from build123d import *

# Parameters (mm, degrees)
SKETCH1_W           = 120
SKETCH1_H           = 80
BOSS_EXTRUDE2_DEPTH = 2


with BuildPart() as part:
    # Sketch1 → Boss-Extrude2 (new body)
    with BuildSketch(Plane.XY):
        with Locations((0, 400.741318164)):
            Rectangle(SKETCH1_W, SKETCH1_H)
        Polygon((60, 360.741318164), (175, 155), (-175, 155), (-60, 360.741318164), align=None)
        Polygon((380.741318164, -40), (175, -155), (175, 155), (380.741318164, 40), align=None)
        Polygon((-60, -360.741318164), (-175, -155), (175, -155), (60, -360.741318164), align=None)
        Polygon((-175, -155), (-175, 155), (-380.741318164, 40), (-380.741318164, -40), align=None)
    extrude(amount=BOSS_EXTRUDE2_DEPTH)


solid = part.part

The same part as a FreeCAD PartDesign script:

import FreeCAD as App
import Part
import Sketcher
from FreeCAD import Vector
Q = App.Units.Quantity

doc = App.newDocument("Part")
body = doc.addObject("PartDesign::Body", "Body")
body.AllowCompound = True

# Sketch on XY plane
sketch1 = body.newObject("Sketcher::SketchObject", "Sketch")
sketch1.AttachmentSupport = (doc.getObject("XY_Plane"), [""])
sketch1.MapMode = "FlatFace"
sketch1.addGeometry(Part.LineSegment(Vector(-60, 441, 0), Vector(-60, 361, 0)), False)
sketch1.addGeometry(Part.LineSegment(Vector(-60, 361, 0), Vector(-175, 155, 0)), False)
sketch1.addGeometry(Part.LineSegment(Vector(-175, 155, 0), Vector(175, 155, 0)), False)
sketch1.addGeometry(Part.LineSegment(Vector(175, 155, 0), Vector(60, 361, 0)), False)
sketch1.addGeometry(Part.LineSegment(Vector(60, 361, 0), Vector(60, 441, 0)), False)
sketch1.addGeometry(Part.LineSegment(Vector(60, 441, 0), Vector(-60, 441, 0)), False)
sketch1.addGeometry(Part.LineSegment(Vector(175, -155, 0), Vector(381, -40, 0)), False)
sketch1.addGeometry(Part.LineSegment(Vector(381, -40, 0), Vector(381, 40, 0)), False)
sketch1.addGeometry(Part.LineSegment(Vector(381, 40, 0), Vector(175, 155, 0)), False)
sketch1.addGeometry(Part.LineSegment(Vector(175, 155, 0), Vector(175, -155, 0)), False)
sketch1.addGeometry(Part.LineSegment(Vector(-175, -155, 0), Vector(-60, -361, 0)), False)
sketch1.addGeometry(Part.LineSegment(Vector(-60, -361, 0), Vector(60, -361, 0)), False)
sketch1.addGeometry(Part.LineSegment(Vector(60, -361, 0), Vector(175, -155, 0)), False)
sketch1.addGeometry(Part.LineSegment(Vector(175, -155, 0), Vector(-175, -155, 0)), False)
sketch1.addGeometry(Part.LineSegment(Vector(-175, -155, 0), Vector(-175, 155, 0)), False)
sketch1.addGeometry(Part.LineSegment(Vector(-175, 155, 0), Vector(-381, 40, 0)), False)
sketch1.addGeometry(Part.LineSegment(Vector(-381, 40, 0), Vector(-381, -40, 0)), False)
sketch1.addGeometry(Part.LineSegment(Vector(-381, -40, 0), Vector(-175, -155, 0)), False)
sketch1.addConstraint(Sketcher.Constraint("Coincident", 0, 2, 1, 1))
sketch1.addConstraint(Sketcher.Constraint("Coincident", 1, 2, 2, 1))
sketch1.addConstraint(Sketcher.Constraint("Coincident", 2, 2, 3, 1))
sketch1.addConstraint(Sketcher.Constraint("Coincident", 3, 2, 4, 1))
sketch1.addConstraint(Sketcher.Constraint("Coincident", 4, 2, 5, 1))
sketch1.addConstraint(Sketcher.Constraint("Coincident", 5, 2, 0, 1))
sketch1.addConstraint(Sketcher.Constraint("Coincident", 6, 2, 7, 1))
sketch1.addConstraint(Sketcher.Constraint("Coincident", 7, 2, 8, 1))
sketch1.addConstraint(Sketcher.Constraint("Coincident", 8, 2, 9, 1))
sketch1.addConstraint(Sketcher.Constraint("Coincident", 9, 2, 6, 1))
sketch1.addConstraint(Sketcher.Constraint("Coincident", 10, 2, 11, 1))
sketch1.addConstraint(Sketcher.Constraint("Coincident", 11, 2, 12, 1))
sketch1.addConstraint(Sketcher.Constraint("Coincident", 12, 2, 13, 1))
sketch1.addConstraint(Sketcher.Constraint("Coincident", 13, 2, 10, 1))
sketch1.addConstraint(Sketcher.Constraint("Coincident", 14, 2, 15, 1))
sketch1.addConstraint(Sketcher.Constraint("Coincident", 15, 2, 16, 1))
sketch1.addConstraint(Sketcher.Constraint("Coincident", 16, 2, 17, 1))
sketch1.addConstraint(Sketcher.Constraint("Coincident", 17, 2, 14, 1))
sketch1.addConstraint(Sketcher.Constraint("Vertical", 0))
sketch1.addConstraint(Sketcher.Constraint("Horizontal", 2))
sketch1.addConstraint(Sketcher.Constraint("Vertical", 4))
sketch1.addConstraint(Sketcher.Constraint("Horizontal", 5))
sketch1.addConstraint(Sketcher.Constraint("Vertical", 7))
sketch1.addConstraint(Sketcher.Constraint("Vertical", 9))
sketch1.addConstraint(Sketcher.Constraint("Horizontal", 11))
sketch1.addConstraint(Sketcher.Constraint("Horizontal", 13))
sketch1.addConstraint(Sketcher.Constraint("Vertical", 14))
sketch1.addConstraint(Sketcher.Constraint("Vertical", 16))
sketch1.addConstraint(Sketcher.Constraint("Coincident", 8, 2, 2, 2))
sketch1.addConstraint(Sketcher.Constraint("Coincident", 12, 2, 9, 2))
sketch1.addConstraint(Sketcher.Constraint("Coincident", 14, 2, 1, 2))
sketch1.addConstraint(Sketcher.Constraint("Coincident", 17, 2, 13, 2))
sketch1.addConstraint(Sketcher.Constraint("Symmetric", 1, 2, 9, 2, -1, 1))
sketch1.addConstraint(Sketcher.Constraint("Symmetric", 3, 2, 10, 2, -1, 1))
sketch1.addConstraint(Sketcher.Constraint("Symmetric", 0, 2, 11, 2, -1, 1))
sketch1.addConstraint(Sketcher.Constraint("Symmetric", 6, 2, 15, 2, -1, 1))
sketch1.addConstraint(Sketcher.Constraint("Perpendicular", 3, 6))
sketch1.addConstraint(Sketcher.Constraint("Perpendicular", 1, 8))
sketch1.addConstraint(Sketcher.Constraint("Perpendicular", 12, 17))
sketch1.addConstraint(Sketcher.Constraint("Horizontal", 7, 2, 15, 2))
sketch1.addConstraint(Sketcher.Constraint("Equal", 4, 7))
sketch1.addConstraint(Sketcher.Constraint("Equal", 3, 6))
sketch1.addConstraint(Sketcher.Constraint("DistanceX", 2, 1, 2, 2, Q("350 mm")))
sketch1.addConstraint(Sketcher.Constraint("DistanceX", 5, 2, 5, 1, Q("120 mm")))
sketch1.addConstraint(Sketcher.Constraint("DistanceY", 0, 2, 0, 1, Q("80 mm")))
sketch1.addConstraint(Sketcher.Constraint("Distance", 1, Q("235.7 mm")))
pad1 = body.newObject("PartDesign::Pad", "Pad")
pad1.Profile = sketch1
pad1.Length = 2

doc.recompute()
